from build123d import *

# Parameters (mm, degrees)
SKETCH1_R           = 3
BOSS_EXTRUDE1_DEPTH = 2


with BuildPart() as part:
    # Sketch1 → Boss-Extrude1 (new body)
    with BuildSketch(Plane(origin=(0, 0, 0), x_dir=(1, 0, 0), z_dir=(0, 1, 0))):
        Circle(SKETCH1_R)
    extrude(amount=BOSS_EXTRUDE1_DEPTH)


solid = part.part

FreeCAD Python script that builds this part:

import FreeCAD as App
import Part
import Sketcher
from FreeCAD import Vector

doc = App.newDocument("Part")
body = doc.addObject("PartDesign::Body", "Body")

# Sketch on XZ plane
sketch1 = body.newObject("Sketcher::SketchObject", "Sketch")
sketch1.AttachmentSupport = (doc.getObject("XZ_Plane"), [""])
sketch1.MapMode = "FlatFace"
sketch1.addGeometry(Part.Circle(Vector(0, 0, 0), Vector(0, 0, 1), 3), False)
sketch1.addConstraint([
    Sketcher.Constraint("Coincident", 0, 3, -1, 1),
    Sketcher.Constraint("Diameter", 0, 6.0),
])
pad1 = body.newObject("PartDesign::Pad", "Pad")
pad1.Profile = sketch1
pad1.Length = 2
pad1.Reversed = True

doc.recompute()
